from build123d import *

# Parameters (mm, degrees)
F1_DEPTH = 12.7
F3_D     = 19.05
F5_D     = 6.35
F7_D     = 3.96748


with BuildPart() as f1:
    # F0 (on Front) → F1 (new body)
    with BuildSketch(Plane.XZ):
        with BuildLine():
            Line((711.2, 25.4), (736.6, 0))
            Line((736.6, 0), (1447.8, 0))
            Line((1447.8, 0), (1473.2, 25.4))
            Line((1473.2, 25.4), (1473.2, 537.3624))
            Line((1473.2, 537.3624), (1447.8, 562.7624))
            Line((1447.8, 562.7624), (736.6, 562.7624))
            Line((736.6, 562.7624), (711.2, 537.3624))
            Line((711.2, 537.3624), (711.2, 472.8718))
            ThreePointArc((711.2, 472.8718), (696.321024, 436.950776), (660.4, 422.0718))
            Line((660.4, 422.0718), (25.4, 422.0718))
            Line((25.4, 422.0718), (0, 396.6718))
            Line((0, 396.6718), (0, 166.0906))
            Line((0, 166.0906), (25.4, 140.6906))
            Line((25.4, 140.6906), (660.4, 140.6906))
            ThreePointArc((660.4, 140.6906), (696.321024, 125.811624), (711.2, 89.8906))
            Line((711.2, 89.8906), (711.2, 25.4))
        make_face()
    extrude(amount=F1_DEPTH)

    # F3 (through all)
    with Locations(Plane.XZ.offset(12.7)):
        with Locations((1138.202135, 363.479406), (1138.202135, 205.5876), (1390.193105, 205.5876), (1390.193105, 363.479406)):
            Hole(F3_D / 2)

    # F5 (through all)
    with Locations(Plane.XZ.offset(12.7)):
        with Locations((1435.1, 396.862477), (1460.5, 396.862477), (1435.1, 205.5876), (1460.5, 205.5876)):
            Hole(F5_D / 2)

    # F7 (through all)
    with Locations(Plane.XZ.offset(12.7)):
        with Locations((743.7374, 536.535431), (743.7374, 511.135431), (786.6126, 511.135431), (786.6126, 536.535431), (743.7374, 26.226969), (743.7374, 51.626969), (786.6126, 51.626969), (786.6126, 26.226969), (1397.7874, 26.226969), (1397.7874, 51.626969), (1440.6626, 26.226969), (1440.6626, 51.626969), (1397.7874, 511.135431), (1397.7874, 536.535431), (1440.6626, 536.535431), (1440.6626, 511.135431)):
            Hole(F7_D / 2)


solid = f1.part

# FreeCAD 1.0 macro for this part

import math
import FreeCAD as App
import Part
import Sketcher
from FreeCAD import Vector
Q = App.Units.Quantity

doc = App.newDocument("Part")
params = doc.addObject("Spreadsheet::Sheet", "Params")
for row, (alias, value) in enumerate([
    ("sketch1_radius", "2.0000001 in"),
    ("sketch1_width", "28 in"),
    ("sketch1_width2", "25 in"),
    ("sketch1_height", "20.156 in"),
    ("sketch1_height2", "2.539 in"),
    ("pad1_length", "0.5 in"),
    ("sketch2_diameter", "0.75 in"),
    ("hole_diameter", "0.75 in"),
    ("sketch3_diameter", "0.25 in"),
    ("hole2_diameter", "0.25 in"),
    ("hole3_diameter", "0.1562 in"),
], start=1):
    params.set(f"A{row}", alias)
    params.set(f"B{row}", "=" + value)
    params.setAlias(f"B{row}", alias)

body = doc.addObject("PartDesign::Body", "Body")

# Sketch on XZ plane
sketch1 = body.newObject("Sketcher::SketchObject", "Sketch")
sketch1.AttachmentSupport = (doc.getObject("XZ_Plane"), [""])
sketch1.MapMode = "FlatFace"
sketch1.addGeometry(Part.LineSegment(Vector(711.2, 25.4, 0), Vector(736.6, 0, 0)), False)
sketch1.addGeometry(Part.LineSegment(Vector(736.6, 0, 0), Vector(1447.8, 0, 0)), False)
sketch1.addGeometry(Part.LineSegment(Vector(1447.8, 0, 0), Vector(1473.2, 25.4, 0)), False)
sketch1.addGeometry(Part.LineSegment(Vector(1473.2, 25.4, 0), Vector(1473.2, 537.3624, 0)), False)
sketch1.addGeometry(Part.LineSegment(Vector(1473.2, 537.3624, 0), Vector(1447.8, 562.7624, 0)), False)
sketch1.addGeometry(Part.LineSegment(Vector(1447.8, 562.7624, 0), Vector(736.6, 562.7624, 0)), False)
sketch1.addGeometry(Part.LineSegment(Vector(736.6, 562.7624, 0), Vector(711.2, 537.3624, 0)), False)
sketch1.addGeometry(Part.LineSegment(Vector(711.2, 537.3624, 0), Vector(711.2, 472.8718, 0)), False)
sketch1.addGeometry(Part.ArcOfCircle(Part.Circle(Vector(660.399998, 472.871802, 0), Vector(0, 0, 1), 50.800002), math.radians(-89.999998), math.radians(-0.000002)), False)
sketch1.addGeometry(Part.LineSegment(Vector(660.4, 422.0718, 0), Vector(25.4, 422.0718, 0)), False)
sketch1.addGeometry(Part.LineSegment(Vector(25.4, 422.0718, 0), Vector(0, 396.6718, 0)), False)
sketch1.addGeometry(Part.LineSegment(Vector(0, 396.6718, 0), Vector(0, 166.0906, 0)), False)
sketch1.addGeometry(Part.LineSegment(Vector(0, 166.0906, 0), Vector(25.4, 140.6906, 0)), False)
sketch1.addGeometry(Part.LineSegment(Vector(25.4, 140.6906, 0), Vector(660.4, 140.6906, 0)), False)
sketch1.addGeometry(Part.ArcOfCircle(Part.Circle(Vector(660.399998, 89.890598, 0), Vector(0, 0, 1), 50.800002), math.radians(0.000002), math.radians(89.999998)), False)
sketch1.addGeometry(Part.LineSegment(Vector(711.2, 89.8906, 0), Vector(711.2, 25.4, 0)), False)
sketch1.addConstraint(Sketcher.Constraint("Coincident", 0, 2, 1, 1))
sketch1.addConstraint(Sketcher.Constraint("Coincident", 1, 2, 2, 1))
sketch1.addConstraint(Sketcher.Constraint("Coincident", 2, 2, 3, 1))
sketch1.addConstraint(Sketcher.Constraint("Coincident", 3, 2, 4, 1))
sketch1.addConstraint(Sketcher.Constraint("Coincident", 4, 2, 5, 1))
sketch1.addConstraint(Sketcher.Constraint("Coincident", 5, 2, 6, 1))
sketch1.addConstraint(Sketcher.Constraint("Coincident", 6, 2, 7, 1))
sketch1.addConstraint(Sketcher.Constraint("Tangent", 7, 2, 8, 2))
sketch1.addConstraint(Sketcher.Constraint("Tangent", 8, 1, 9, 1))
sketch1.addConstraint(Sketcher.Constraint("Coincident", 9, 2, 10, 1))
sketch1.addConstraint(Sketcher.Constraint("Coincident", 10, 2, 11, 1))
sketch1.addConstraint(Sketcher.Constraint("Coincident", 11, 2, 12, 1))
sketch1.addConstraint(Sketcher.Constraint("Coincident", 12, 2, 13, 1))
sketch1.addConstraint(Sketcher.Constraint("Tangent", 13, 2, 14, 2))
sketch1.addConstraint(Sketcher.Constraint("Tangent", 14, 1, 15, 1))
sketch1.addConstraint(Sketcher.Constraint("Coincident", 15, 2, 0, 1))
sketch1.addConstraint(Sketcher.Constraint("Horizontal", 1))
sketch1.addConstraint(Sketcher.Constraint("Vertical", 3))
sketch1.addConstraint(Sketcher.Constraint("Horizontal", 5))
sketch1.addConstraint(Sketcher.Constraint("Vertical", 7))
sketch1.addConstraint(Sketcher.Constraint("Horizontal", 9))
sketch1.addConstraint(Sketcher.Constraint("Vertical", 11))
sketch1.addConstraint(Sketcher.Constraint("Horizontal", 13))
sketch1.addConstraint(Sketcher.Constraint("Vertical", 15))
sketch1.addConstraint(Sketcher.Constraint("Equal", 8, 14))
sketch1.addConstraint(Sketcher.Constraint("PointOnObject", 0, 2, -1))
sketch1.addConstraint(Sketcher.Constraint("PointOnObject", 10, 2, -2))
sketch1.addConstraint(Sketcher.Constraint("Perpendicular", 0, 2))
sketch1.addConstraint(Sketcher.Constraint("Perpendicular", 2, 4))
sketch1.addConstraint(Sketcher.Constraint("Perpendicular", 4, 6))
sketch1.addConstraint(Sketcher.Constraint("Parallel", 6, 10))
sketch1.addConstraint(Sketcher.Constraint("Perpendicular", 10, 12))
sketch1.addConstraint(Sketcher.Constraint("Horizontal", 3, 2, 6, 2))
sketch1.addConstraint(Sketcher.Constraint("Horizontal", 2, 2, 15, 2))
sketch1.addConstraint(Sketcher.Constraint("Vertical", 8, 3, 14, 3))
sketch1.addConstraint(Sketcher.Constraint("Vertical", 1, 2, 4, 2))
sketch1.addConstraint(Sketcher.Constraint("Vertical", 0, 2, 5, 2))
sketch1.addConstraint(Sketcher.Constraint("Vertical", 9, 2, 12, 2))
sketch1.addConstraint(Sketcher.Constraint("Equal", 7, 15))
sketch1.addConstraint(Sketcher.Constraint("Equal", 6, 10))
sketch1.addConstraint(Sketcher.Constraint("Radius", 8, Q("2.0000001 in")))
sketch1.addConstraint(Sketcher.Constraint("DistanceX", 1, 1, 1, 2, Q("28 in")))
sketch1.addConstraint(Sketcher.Constraint("DistanceX", 9, 2, 9, 1, Q("25 in")))
sketch1.addConstraint(Sketcher.Constraint("DistanceX", -1, 1, 8, 3, Q("25.9999999 in")))
sketch1.addConstraint(Sketcher.Constraint("DistanceY", 3, 1, 3, 2, Q("20.156 in")))
sketch1.addConstraint(Sketcher.Constraint("DistanceY", 7, 2, 7, 1, Q("2.539 in")))
sketch1.setExpression("Constraints[40]", "Params.sketch1_radius")
sketch1.setExpression("Constraints[41]", "Params.sketch1_width")
sketch1.setExpression("Constraints[42]", "Params.sketch1_width2")
sketch1.setExpression("Constraints[44]", "Params.sketch1_height")
sketch1.setExpression("Constraints[45]", "Params.sketch1_height2")
pad1 = body.newObject("PartDesign::Pad", "Pad")
pad1.Profile = sketch1
pad1.setExpression("Length", "Params.pad1_length")

# Sketch on XZ plane
sketch2 = body.newObject("Sketcher::SketchObject", "Sketch001")
sketch2.AttachmentSupport = (doc.getObject("XZ_Plane"), [""])
sketch2.MapMode = "FlatFace"
sketch2.AttachmentOffset = App.Placement(Vector(0, 0, 0.5 * 25.4), App.Rotation())
sketch2.addGeometry(Part.Circle(Vector(1138.202135, 363.479406, 0), Vector(0, 0, 1), 9.525), False)
sketch2.addGeometry(Part.Circle(Vector(1138.202135, 205.5876, 0), Vector(0, 0, 1), 9.525), False)
sketch2.addGeometry(Part.Circle(Vector(1390.193105, 205.5876, 0), Vector(0, 0, 1), 9.525), False)
sketch2.addGeometry(Part.Circle(Vector(1390.193105, 363.479406, 0), Vector(0, 0, 1), 9.525), False)
sketch2.addConstraint(Sketcher.Constraint("Equal", 0, 1))
sketch2.addConstraint(Sketcher.Constraint("Equal", 1, 2))
sketch2.addConstraint(Sketcher.Constraint("Equal", 2, 3))
sketch2.addConstraint(Sketcher.Constraint("Horizontal", 1, 3, 2, 3))
sketch2.addConstraint(Sketcher.Constraint("Horizontal", 0, 3, 3, 3))
sketch2.addConstraint(Sketcher.Constraint("Vertical", 0, 3, 1, 3))
sketch2.addConstraint(Sketcher.Constraint("Vertical", 2, 3, 3, 3))
sketch2.addConstraint(Sketcher.Constraint("Diameter", 0, Q("0.75 in")))
sketch2.addConstraint(Sketcher.Constraint("DistanceY", -1, 1, 1, 3, Q("8.094 in")))
sketch2.addConstraint(Sketcher.Constraint("DistanceX", 1, 3, 2, 3, Q("251.99097 mm")))
sketch2.addConstraint(Sketcher.Constraint("DistanceX", -1, 1, 0, 3, Q("1138.202135 mm")))
sketch2.addConstraint(Sketcher.Constraint("DistanceY", -1, 1, 0, 3, Q("363.479406 mm")))
sketch2.setExpression("Constraints[7]", "Params.sketch2_diameter")
doc.recompute()
hole = body.newObject("PartDesign::Hole", "Hole")
hole.Profile = sketch2
hole.ThreadType = "None"
hole.setExpression("Diameter", "Params.hole_diameter")
hole.DepthType = "ThroughAll"

# Sketch on XZ plane
sketch3 = body.newObject("Sketcher::SketchObject", "Sketch002")
sketch3.AttachmentSupport = (doc.getObject("XZ_Plane"), [""])
sketch3.MapMode = "FlatFace"
sketch3.AttachmentOffset = App.Placement(Vector(0, 0, 0.5 * 25.4), App.Rotation())
sketch3.addGeometry(Part.Circle(Vector(1435.1, 396.862477, 0), Vector(0, 0, 1), 3.175), False)
sketch3.addGeometry(Part.Circle(Vector(1460.5, 396.862477, 0), Vector(0, 0, 1), 3.175), False)
sketch3.addGeometry(Part.Circle(Vector(1435.1, 205.5876, 0), Vector(0, 0, 1), 3.175), False)
sketch3.addGeometry(Part.Circle(Vector(1460.5, 205.5876, 0), Vector(0, 0, 1), 3.175), False)
sketch3.addConstraint(Sketcher.Constraint("Equal", 0, 1))
sketch3.addConstraint(Sketcher.Constraint("Equal", 1, 2))
sketch3.addConstraint(Sketcher.Constraint("Equal", 2, 3))
sketch3.addConstraint(Sketcher.Constraint("Horizontal", 0, 3, 1, 3))
sketch3.addConstraint(Sketcher.Constraint("Horizontal", 2, 3, 3, 3))
sketch3.addConstraint(Sketcher.Constraint("Vertical", 0, 3, 2, 3))
sketch3.addConstraint(Sketcher.Constraint("Vertical", 1, 3, 3, 3))
sketch3.addConstraint(Sketcher.Constraint("Diameter", 0, Q("0.25 in")))
sketch3.addConstraint(Sketcher.Constraint("DistanceX", 0, 3, 1, 3, Q("1 in")))
sketch3.addConstraint(Sketcher.Constraint("DistanceX", -1, 1, 0, 3, Q("56.5 in")))
sketch3.addConstraint(Sketcher.Constraint("DistanceY", -1, 1, 2, 3, Q("8.094 in")))
sketch3.addConstraint(Sketcher.Constraint("DistanceY", -1, 1, 0, 3, Q("396.862477 mm")))
sketch3.setExpression("Constraints[7]", "Params.sketch3_diameter")
doc.recompute()
hole2 = body.newObject("PartDesign::Hole", "Hole001")
hole2.Profile = sketch3
hole2.ThreadType = "None"
hole2.setExpression("Diameter", "Params.hole2_diameter")
hole2.DepthType = "ThroughAll"

# Sketch on XZ plane
sketch4 = body.newObject("Sketcher::SketchObject", "Sketch003")
sketch4.AttachmentSupport = (doc.getObject("XZ_Plane"), [""])
sketch4.MapMode = "FlatFace"
sketch4.AttachmentOffset = App.Placement(Vector(0, 0, 0.5 * 25.4), App.Rotation())
sketch4.addGeometry(Part.Circle(Vector(743.7374, 536.535431, 0), Vector(0, 0, 1), 1.98374), False)
sketch4.addGeometry(Part.Circle(Vector(743.7374, 511.135431, 0), Vector(0, 0, 1), 1.98374), False)
sketch4.addGeometry(Part.Circle(Vector(786.6126, 511.135431, 0), Vector(0, 0, 1), 1.98374), False)
sketch4.addGeometry(Part.Circle(Vector(786.6126, 536.535431, 0), Vector(0, 0, 1), 1.98374), False)
sketch4.addGeometry(Part.Circle(Vector(743.7374, 26.226969, 0), Vector(0, 0, 1), 1.98374), False)
sketch4.addGeometry(Part.Circle(Vector(743.7374, 51.626969, 0), Vector(0, 0, 1), 1.98374), False)
sketch4.addGeometry(Part.Circle(Vector(786.6126, 51.626969, 0), Vector(0, 0, 1), 1.98374), False)
sketch4.addGeometry(Part.Circle(Vector(786.6126, 26.226969, 0), Vector(0, 0, 1), 1.98374), False)
sketch4.addGeometry(Part.Circle(Vector(1397.7874, 26.226969, 0), Vector(0, 0, 1), 1.98374), False)
sketch4.addGeometry(Part.Circle(Vector(1397.7874, 51.626969, 0), Vector(0, 0, 1), 1.98374), False)
sketch4.addGeometry(Part.Circle(Vector(1440.6626, 26.226969, 0), Vector(0, 0, 1), 1.98374), False)
sketch4.addGeometry(Part.Circle(Vector(1440.6626, 51.626969, 0), Vector(0, 0, 1), 1.98374), False)
sketch4.addGeometry(Part.Circle(Vector(1397.7874, 511.135431, 0), Vector(0, 0, 1), 1.98374), False)
sketch4.addGeometry(Part.Circle(Vector(1397.7874, 536.535431, 0), Vector(0, 0, 1), 1.98374), False)
sketch4.addGeometry(Part.Circle(Vector(1440.6626, 536.535431, 0), Vector(0, 0, 1), 1.98374), False)
sketch4.addGeometry(Part.Circle(Vector(1440.6626, 511.135431, 0), Vector(0, 0, 1), 1.98374), False)
sketch4.addConstraint(Sketcher.Constraint("Equal", 0, 1))
sketch4.addConstraint(Sketcher.Constraint("Equal", 1, 2))
sketch4.addConstraint(Sketcher.Constraint("Equal", 2, 3))
sketch4.addConstraint(Sketcher.Constraint("Equal", 3, 4))
sketch4.addConstraint(Sketcher.Constraint("Equal", 4, 5))
sketch4.addConstraint(Sketcher.Constraint("Equal", 5, 6))
sketch4.addConstraint(Sketcher.Constraint("Equal", 6, 7))
sketch4.addConstraint(Sketcher.Constraint("Equal", 7, 8))
sketch4.addConstraint(Sketcher.Constraint("Equal", 8, 9))
sketch4.addConstraint(Sketcher.Constraint("Equal", 9, 10))
sketch4.addConstraint(Sketcher.Constraint("Equal", 10, 11))
sketch4.addConstraint(Sketcher.Constraint("Equal", 11, 12))
sketch4.addConstraint(Sketcher.Constraint("Equal", 12, 13))
sketch4.addConstraint(Sketcher.Constraint("Equal", 13, 14))
sketch4.addConstraint(Sketcher.Constraint("Equal", 14, 15))
sketch4.addConstraint(Sketcher.Constraint("Horizontal", 1, 3, 2, 3))
sketch4.addConstraint(Sketcher.Constraint("Horizontal", 0, 3, 3, 3))
sketch4.addConstraint(Sketcher.Constraint("Horizontal", 5, 3, 6, 3))
sketch4.addConstraint(Sketcher.Constraint("Horizontal", 4, 3, 7, 3))
sketch4.addConstraint(Sketcher.Constraint("Horizontal", 7, 3, 8, 3))
sketch4.addConstraint(Sketcher.Constraint("Horizontal", 6, 3, 9, 3))
sketch4.addConstraint(Sketcher.Constraint("Horizontal", 8, 3, 10, 3))
sketch4.addConstraint(Sketcher.Constraint("Horizontal", 9, 3, 11, 3))
sketch4.addConstraint(Sketcher.Constraint("Horizontal", 2, 3, 12, 3))
sketch4.addConstraint(Sketcher.Constraint("Horizontal", 3, 3, 13, 3))
sketch4.addConstraint(Sketcher.Constraint("Horizontal", 13, 3, 14, 3))
sketch4.addConstraint(Sketcher.Constraint("Horizontal", 12, 3, 15, 3))
sketch4.addConstraint(Sketcher.Constraint("Vertical", 0, 3, 1, 3))
sketch4.addConstraint(Sketcher.Constraint("Vertical", 2, 3, 3, 3))
sketch4.addConstraint(Sketcher.Constraint("Vertical", 1, 3, 4, 3))
sketch4.addConstraint(Sketcher.Constraint("Vertical", 4, 3, 5, 3))
sketch4.addConstraint(Sketcher.Constraint("Vertical", 3, 3, 6, 3))
sketch4.addConstraint(Sketcher.Constraint("Vertical", 6, 3, 7, 3))
sketch4.addConstraint(Sketcher.Constraint("Vertical", 8, 3, 9, 3))
sketch4.addConstraint(Sketcher.Constraint("Vertical", 10, 3, 11, 3))
sketch4.addConstraint(Sketcher.Constraint("Vertical", 9, 3, 12, 3))
sketch4.addConstraint(Sketcher.Constraint("Vertical", 12, 3, 13, 3))
sketch4.addConstraint(Sketcher.Constraint("Vertical", 11, 3, 14, 3))
sketch4.addConstraint(Sketcher.Constraint("Vertical", 14, 3, 15, 3))
sketch4.addConstraint(Sketcher.Constraint("DistanceY", 1, 3, 0, 3, Q("1 in")))
sketch4.addConstraint(Sketcher.Constraint("DistanceY", 4, 3, 5, 3, Q("1 in")))
sketch4.addConstraint(Sketcher.Constraint("Diameter", 0, Q("0.1562 in")))
sketch4.addConstraint(Sketcher.Constraint("DistanceX", 4, 3, 8, 3, Q("25.75 in")))
sketch4.addConstraint(Sketcher.Constraint("DistanceX", 7, 3, 10, 3, Q("25.75 in")))
sketch4.addConstraint(Sketcher.Constraint("DistanceX", -1, 1, 0, 3, Q("29.281 in")))
sketch4.addConstraint(Sketcher.Constraint("DistanceX", -1, 1, 2, 3, Q("30.969 in")))
sketch4.addConstraint(Sketcher.Constraint("DistanceY", -1, 1, 0, 3, Q("536.535431 mm")))
sketch4.addConstraint(Sketcher.Constraint("DistanceY", -1, 1, 4, 3, Q("26.226969 mm")))
doc.recompute()
hole3 = body.newObject("PartDesign::Hole", "Hole002")
hole3.Profile = sketch4
hole3.ThreadType = "None"
hole3.setExpression("Diameter", "Params.hole3_diameter")
hole3.DepthType = "ThroughAll"

doc.recompute()
